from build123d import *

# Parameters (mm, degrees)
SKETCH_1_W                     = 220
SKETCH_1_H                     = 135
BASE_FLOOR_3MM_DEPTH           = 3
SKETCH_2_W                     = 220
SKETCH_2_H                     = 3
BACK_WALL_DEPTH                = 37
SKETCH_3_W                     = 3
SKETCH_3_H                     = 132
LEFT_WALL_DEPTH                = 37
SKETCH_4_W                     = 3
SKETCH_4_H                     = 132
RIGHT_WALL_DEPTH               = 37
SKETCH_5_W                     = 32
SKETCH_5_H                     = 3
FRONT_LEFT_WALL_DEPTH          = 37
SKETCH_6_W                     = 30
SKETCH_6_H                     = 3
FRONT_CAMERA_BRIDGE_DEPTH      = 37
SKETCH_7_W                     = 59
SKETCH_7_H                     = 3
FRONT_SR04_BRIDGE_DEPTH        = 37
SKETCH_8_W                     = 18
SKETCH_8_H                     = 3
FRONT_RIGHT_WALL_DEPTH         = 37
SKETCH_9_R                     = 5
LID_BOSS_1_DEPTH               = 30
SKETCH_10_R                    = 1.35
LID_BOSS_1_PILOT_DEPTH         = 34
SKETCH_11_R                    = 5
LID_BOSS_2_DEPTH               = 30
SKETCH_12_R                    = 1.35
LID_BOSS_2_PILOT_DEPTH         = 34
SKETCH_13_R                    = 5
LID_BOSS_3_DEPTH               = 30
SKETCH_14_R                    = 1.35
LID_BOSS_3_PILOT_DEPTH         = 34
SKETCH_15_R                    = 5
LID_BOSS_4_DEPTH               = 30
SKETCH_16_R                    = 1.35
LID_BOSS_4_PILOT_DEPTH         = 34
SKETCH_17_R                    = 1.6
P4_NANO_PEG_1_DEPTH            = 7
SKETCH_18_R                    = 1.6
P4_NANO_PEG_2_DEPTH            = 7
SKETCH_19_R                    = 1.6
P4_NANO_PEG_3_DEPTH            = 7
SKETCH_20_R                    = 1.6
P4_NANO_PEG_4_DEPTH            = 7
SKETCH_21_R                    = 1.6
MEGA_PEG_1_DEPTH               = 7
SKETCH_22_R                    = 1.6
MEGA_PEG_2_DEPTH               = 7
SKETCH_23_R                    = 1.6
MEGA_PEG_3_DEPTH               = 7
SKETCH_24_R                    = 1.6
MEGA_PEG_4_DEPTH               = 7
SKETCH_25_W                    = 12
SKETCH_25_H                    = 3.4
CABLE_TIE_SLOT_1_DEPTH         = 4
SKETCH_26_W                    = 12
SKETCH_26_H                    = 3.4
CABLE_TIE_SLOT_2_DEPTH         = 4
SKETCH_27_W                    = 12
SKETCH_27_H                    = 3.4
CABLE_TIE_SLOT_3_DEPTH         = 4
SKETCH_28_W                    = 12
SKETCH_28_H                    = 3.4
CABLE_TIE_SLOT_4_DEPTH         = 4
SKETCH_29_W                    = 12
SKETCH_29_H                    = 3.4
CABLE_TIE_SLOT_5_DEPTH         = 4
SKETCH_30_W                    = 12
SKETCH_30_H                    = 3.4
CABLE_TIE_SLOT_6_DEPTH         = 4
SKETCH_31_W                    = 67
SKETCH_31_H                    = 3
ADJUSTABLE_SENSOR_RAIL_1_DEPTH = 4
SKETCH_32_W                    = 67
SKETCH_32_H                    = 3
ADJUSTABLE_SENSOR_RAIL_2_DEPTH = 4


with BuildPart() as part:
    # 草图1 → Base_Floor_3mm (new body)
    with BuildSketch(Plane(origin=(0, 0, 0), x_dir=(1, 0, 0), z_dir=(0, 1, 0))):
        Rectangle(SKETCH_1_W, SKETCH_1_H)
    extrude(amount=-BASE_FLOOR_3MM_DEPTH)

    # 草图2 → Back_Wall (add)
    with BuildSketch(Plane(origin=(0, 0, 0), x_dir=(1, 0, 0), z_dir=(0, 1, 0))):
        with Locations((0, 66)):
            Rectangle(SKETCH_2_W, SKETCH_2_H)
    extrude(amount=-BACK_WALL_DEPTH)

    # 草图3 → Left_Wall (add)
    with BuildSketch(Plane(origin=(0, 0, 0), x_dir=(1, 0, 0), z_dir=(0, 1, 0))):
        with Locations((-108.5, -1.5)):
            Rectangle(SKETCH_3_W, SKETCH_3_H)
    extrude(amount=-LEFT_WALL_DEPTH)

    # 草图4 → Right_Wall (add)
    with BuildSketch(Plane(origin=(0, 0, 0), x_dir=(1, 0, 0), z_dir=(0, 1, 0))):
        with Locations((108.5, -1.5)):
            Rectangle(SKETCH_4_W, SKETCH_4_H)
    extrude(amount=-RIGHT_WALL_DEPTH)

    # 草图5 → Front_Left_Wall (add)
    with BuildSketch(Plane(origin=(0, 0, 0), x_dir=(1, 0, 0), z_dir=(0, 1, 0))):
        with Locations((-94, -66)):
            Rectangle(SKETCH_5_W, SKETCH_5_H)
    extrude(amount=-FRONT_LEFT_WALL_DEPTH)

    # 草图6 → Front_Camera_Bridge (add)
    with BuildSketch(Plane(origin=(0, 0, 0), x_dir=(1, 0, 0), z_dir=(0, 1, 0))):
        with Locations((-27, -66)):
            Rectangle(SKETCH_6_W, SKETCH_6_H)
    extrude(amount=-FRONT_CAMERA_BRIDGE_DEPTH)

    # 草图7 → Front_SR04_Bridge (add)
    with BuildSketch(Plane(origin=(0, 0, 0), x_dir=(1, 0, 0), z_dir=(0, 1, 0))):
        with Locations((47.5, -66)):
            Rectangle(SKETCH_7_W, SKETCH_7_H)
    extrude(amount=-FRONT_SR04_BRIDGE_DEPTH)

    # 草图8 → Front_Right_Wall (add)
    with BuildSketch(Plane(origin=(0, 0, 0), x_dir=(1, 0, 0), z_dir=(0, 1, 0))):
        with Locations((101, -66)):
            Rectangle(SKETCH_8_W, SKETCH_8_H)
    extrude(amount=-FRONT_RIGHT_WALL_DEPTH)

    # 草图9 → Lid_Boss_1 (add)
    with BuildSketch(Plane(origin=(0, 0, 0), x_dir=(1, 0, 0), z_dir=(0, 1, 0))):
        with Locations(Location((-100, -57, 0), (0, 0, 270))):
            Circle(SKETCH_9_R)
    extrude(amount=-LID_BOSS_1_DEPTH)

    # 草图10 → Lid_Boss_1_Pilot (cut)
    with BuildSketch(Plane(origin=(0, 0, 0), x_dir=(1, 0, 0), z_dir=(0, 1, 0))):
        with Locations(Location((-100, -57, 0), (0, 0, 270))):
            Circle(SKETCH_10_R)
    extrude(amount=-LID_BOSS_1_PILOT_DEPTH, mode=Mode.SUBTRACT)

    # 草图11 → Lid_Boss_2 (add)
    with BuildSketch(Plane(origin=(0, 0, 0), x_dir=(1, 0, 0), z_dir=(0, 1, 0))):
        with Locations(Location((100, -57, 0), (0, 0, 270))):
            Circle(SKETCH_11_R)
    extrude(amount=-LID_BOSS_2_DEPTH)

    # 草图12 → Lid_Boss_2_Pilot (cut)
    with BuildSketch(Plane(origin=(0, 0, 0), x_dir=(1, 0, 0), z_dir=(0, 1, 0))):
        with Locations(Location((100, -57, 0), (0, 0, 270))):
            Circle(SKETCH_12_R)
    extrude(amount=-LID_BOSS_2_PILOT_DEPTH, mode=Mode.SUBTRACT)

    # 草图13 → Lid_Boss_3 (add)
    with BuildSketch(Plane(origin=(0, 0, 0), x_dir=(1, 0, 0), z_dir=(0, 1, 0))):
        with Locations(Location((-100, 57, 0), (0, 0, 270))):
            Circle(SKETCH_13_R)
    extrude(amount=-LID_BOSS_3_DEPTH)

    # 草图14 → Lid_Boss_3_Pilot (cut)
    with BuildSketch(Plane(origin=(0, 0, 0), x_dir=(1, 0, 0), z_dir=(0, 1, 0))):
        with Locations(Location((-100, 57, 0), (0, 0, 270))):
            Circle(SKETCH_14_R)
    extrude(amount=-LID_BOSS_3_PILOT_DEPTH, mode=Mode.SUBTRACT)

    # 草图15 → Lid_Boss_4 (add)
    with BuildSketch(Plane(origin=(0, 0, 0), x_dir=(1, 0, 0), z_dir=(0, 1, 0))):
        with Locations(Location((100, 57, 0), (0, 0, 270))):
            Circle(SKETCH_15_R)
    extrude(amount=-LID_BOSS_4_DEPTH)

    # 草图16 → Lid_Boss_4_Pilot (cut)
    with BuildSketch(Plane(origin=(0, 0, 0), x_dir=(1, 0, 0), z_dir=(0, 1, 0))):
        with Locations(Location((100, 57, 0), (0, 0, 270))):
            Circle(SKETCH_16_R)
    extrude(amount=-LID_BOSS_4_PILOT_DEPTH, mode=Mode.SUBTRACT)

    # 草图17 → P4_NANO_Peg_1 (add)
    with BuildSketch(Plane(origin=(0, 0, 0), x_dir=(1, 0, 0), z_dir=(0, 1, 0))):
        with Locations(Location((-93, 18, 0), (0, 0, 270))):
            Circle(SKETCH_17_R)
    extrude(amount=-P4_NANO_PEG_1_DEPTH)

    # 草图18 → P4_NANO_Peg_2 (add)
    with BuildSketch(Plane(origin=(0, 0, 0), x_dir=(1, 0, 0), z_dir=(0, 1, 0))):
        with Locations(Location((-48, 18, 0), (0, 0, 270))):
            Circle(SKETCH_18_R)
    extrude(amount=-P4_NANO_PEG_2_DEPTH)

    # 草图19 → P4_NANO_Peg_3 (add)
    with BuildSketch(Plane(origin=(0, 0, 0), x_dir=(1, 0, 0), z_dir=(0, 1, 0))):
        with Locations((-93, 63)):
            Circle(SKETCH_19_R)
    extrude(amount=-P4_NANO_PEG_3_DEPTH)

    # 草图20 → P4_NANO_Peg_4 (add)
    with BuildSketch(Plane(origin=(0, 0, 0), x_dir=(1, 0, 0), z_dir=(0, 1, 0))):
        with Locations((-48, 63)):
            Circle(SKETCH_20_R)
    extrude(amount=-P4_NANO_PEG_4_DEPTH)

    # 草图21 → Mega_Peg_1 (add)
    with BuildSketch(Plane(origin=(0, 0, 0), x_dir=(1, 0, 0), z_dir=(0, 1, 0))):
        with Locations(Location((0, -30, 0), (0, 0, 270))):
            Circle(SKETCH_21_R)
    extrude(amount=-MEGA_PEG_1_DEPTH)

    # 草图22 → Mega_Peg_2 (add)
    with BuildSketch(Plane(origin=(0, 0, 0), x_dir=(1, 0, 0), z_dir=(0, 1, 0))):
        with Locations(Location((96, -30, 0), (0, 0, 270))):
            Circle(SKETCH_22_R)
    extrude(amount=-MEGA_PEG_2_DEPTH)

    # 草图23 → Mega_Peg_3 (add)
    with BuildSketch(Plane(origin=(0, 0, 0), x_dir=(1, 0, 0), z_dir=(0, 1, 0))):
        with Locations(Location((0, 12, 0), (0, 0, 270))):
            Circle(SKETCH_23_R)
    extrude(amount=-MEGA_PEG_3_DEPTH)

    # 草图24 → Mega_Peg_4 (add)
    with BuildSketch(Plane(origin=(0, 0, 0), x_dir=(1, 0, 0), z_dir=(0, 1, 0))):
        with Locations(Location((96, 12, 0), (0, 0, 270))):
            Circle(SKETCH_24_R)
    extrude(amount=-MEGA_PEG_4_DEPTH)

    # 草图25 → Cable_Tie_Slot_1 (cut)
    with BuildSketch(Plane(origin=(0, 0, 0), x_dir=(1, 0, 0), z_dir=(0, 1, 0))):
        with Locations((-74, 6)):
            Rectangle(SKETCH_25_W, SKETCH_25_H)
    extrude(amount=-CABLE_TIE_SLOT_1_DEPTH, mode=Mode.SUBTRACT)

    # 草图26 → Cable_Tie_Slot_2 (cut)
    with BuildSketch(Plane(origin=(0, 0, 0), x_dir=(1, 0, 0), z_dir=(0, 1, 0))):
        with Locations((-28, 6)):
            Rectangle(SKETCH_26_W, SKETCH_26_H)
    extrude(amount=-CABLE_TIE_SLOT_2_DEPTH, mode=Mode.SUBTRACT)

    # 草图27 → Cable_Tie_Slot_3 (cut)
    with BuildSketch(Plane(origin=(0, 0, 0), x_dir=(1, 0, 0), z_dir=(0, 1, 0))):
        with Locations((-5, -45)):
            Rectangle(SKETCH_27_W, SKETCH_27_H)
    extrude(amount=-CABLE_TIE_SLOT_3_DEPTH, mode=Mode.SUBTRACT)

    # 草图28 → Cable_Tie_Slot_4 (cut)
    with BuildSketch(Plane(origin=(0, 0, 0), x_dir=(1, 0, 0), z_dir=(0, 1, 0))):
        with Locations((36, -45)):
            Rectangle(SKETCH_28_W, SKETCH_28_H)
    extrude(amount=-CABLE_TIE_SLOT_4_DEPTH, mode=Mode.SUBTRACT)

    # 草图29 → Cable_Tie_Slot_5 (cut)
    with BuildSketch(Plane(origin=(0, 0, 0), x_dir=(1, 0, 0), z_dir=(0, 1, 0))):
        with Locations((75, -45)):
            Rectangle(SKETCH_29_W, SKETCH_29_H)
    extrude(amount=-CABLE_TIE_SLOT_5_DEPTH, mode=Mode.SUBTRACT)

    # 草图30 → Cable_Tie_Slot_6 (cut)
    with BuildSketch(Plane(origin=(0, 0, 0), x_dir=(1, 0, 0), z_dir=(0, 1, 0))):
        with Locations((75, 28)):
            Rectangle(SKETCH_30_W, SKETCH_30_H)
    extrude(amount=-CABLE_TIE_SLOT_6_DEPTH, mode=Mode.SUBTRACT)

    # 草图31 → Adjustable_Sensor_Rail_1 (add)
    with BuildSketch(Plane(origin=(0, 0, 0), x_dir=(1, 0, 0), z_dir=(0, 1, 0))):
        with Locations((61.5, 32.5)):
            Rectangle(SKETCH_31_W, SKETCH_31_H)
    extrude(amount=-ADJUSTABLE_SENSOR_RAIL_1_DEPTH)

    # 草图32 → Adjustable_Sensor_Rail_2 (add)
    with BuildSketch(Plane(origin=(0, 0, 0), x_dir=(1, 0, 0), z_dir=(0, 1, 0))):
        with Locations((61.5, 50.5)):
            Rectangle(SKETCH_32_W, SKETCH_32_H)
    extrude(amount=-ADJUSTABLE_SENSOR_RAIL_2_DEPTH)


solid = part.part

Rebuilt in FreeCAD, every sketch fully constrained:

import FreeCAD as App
import Part
import Sketcher


def add_polygon(sketch, points):
    """Adds a closed chain of lines whose ends are joined by coincident constraints."""
    first, n = sketch.GeometryCount, len(points)
    for a, b in zip(points, points[1:] + points[:1]):
        sketch.addGeometry(Part.LineSegment(App.Vector(*a, 0), App.Vector(*b, 0)), False)
    for i in range(n):
        sketch.addConstraint(Sketcher.Constraint("Coincident", first + i, 2, first + (i + 1) % n, 1))

doc = App.newDocument("Part")
body = doc.addObject("PartDesign::Body", "Body")

# Sketch on XZ plane
sketch1 = doc.addObject("Sketcher::SketchObject", "Sketch")
body.addObject(sketch1)
sketch1.AttachmentSupport = (doc.XZ_Plane, [""])
sketch1.MapMode = "FlatFace"
add_polygon(sketch1, [(-110, -67.5), (-110, 67.5), (110, 67.5), (110, -67.5)])  # lines 0-3
sketch1.addConstraint([
    Sketcher.Constraint("Vertical", 0),
    Sketcher.Constraint("Horizontal", 1),
    Sketcher.Constraint("Vertical", 2),
    Sketcher.Constraint("Horizontal", 3),
    Sketcher.Constraint("Symmetric", 0, 2, 2, 2, -1, 1),
    Sketcher.Constraint("DistanceX", 1, 1, 1, 2, 220.0),
    Sketcher.Constraint("DistanceY", 0, 1, 0, 2, 135.0),
])
pad1 = doc.addObject("PartDesign::Pad", "Pad")
body.addObject(pad1)
pad1.Profile = sketch1
pad1.Length = 3

# Sketch on XZ plane
sketch2 = doc.addObject("Sketcher::SketchObject", "Sketch001")
body.addObject(sketch2)
sketch2.AttachmentSupport = (doc.XZ_Plane, [""])
sketch2.MapMode = "FlatFace"
add_polygon(sketch2, [(-110, -67.5), (-110, -64.5), (110, -64.5), (110, -67.5)])  # lines 0-3
sketch2.addConstraint([
    Sketcher.Constraint("Vertical", 0),
    Sketcher.Constraint("Horizontal", 1),
    Sketcher.Constraint("Vertical", 2),
    Sketcher.Constraint("Horizontal", 3),
    Sketcher.Constraint("DistanceX", 1, 1, 1, 2, 220.0),
    Sketcher.Constraint("DistanceY", 0, 1, 0, 2, 3.0),
    Sketcher.Constraint("DistanceX", 0, 2, -1, 1, 110.0),
    Sketcher.Constraint("DistanceY", 0, 2, -1, 1, 64.5),
])
pad2 = doc.addObject("PartDesign::Pad", "Pad001")
body.addObject(pad2)
pad2.Profile = sketch2
pad2.Length = 37

# Sketch on XZ plane
sketch3 = doc.addObject("Sketcher::SketchObject", "Sketch002")
body.addObject(sketch3)
sketch3.AttachmentSupport = (doc.XZ_Plane, [""])
sketch3.MapMode = "FlatFace"
add_polygon(sketch3, [(-110, -64.5), (-110, 67.5), (-107, 67.5), (-107, -64.5)])  # lines 0-3
sketch3.addConstraint([
    Sketcher.Constraint("Vertical", 0),
    Sketcher.Constraint("Horizontal", 1),
    Sketcher.Constraint("Vertical", 2),
    Sketcher.Constraint("Horizontal", 3),
    Sketcher.Constraint("DistanceX", 1, 1, 1, 2, 3.0),
    Sketcher.Constraint("DistanceY", 0, 1, 0, 2, 132.0),
    Sketcher.Constraint("DistanceX", 0, 2, -1, 1, 110.0),
    Sketcher.Constraint("DistanceY", -1, 1, 0, 2, 67.5),
])
pad3 = doc.addObject("PartDesign::Pad", "Pad002")
body.addObject(pad3)
pad3.Profile = sketch3
pad3.Length = 37

# Sketch on XZ plane
sketch4 = doc.addObject("Sketcher::SketchObject", "Sketch003")
body.addObject(sketch4)
sketch4.AttachmentSupport = (doc.XZ_Plane, [""])
sketch4.MapMode = "FlatFace"
add_polygon(sketch4, [(107, -64.5), (107, 67.5), (110, 67.5), (110, -64.5)])  # lines 0-3
sketch4.addConstraint([
    Sketcher.Constraint("Vertical", 0),
    Sketcher.Constraint("Horizontal", 1),
    Sketcher.Constraint("Vertical", 2),
    Sketcher.Constraint("Horizontal", 3),
    Sketcher.Constraint("DistanceX", 1, 1, 1, 2, 3.0),
    Sketcher.Constraint("DistanceY", 0, 1, 0, 2, 132.0),
    Sketcher.Constraint("DistanceX", -1, 1, 0, 2, 107.0),
    Sketcher.Constraint("DistanceY", -1, 1, 0, 2, 67.5),
])
pad4 = doc.addObject("PartDesign::Pad", "Pad003")
body.addObject(pad4)
pad4.Profile = sketch4
pad4.Length = 37

# Sketch on XZ plane
sketch5 = doc.addObject("Sketcher::SketchObject", "Sketch004")
body.addObject(sketch5)
sketch5.AttachmentSupport = (doc.XZ_Plane, [""])
sketch5.MapMode = "FlatFace"
add_polygon(sketch5, [(-110, 64.5), (-110, 67.5), (-78, 67.5), (-78, 64.5)])  # lines 0-3
sketch5.addConstraint([
    Sketcher.Constraint("Vertical", 0),
    Sketcher.Constraint("Horizontal", 1),
    Sketcher.Constraint("Vertical", 2),
    Sketcher.Constraint("Horizontal", 3),
    Sketcher.Constraint("DistanceX", 1, 1, 1, 2, 32.0),
    Sketcher.Constraint("DistanceY", 0, 1, 0, 2, 3.0),
    Sketcher.Constraint("DistanceX", 0, 2, -1, 1, 110.0),
    Sketcher.Constraint("DistanceY", -1, 1, 0, 2, 67.5),
])
pad5 = doc.addObject("PartDesign::Pad", "Pad004")
body.addObject(pad5)
pad5.Profile = sketch5
pad5.Length = 37

# Sketch on XZ plane
sketch6 = doc.addObject("Sketcher::SketchObject", "Sketch005")
body.addObject(sketch6)
sketch6.AttachmentSupport = (doc.XZ_Plane, [""])
sketch6.MapMode = "FlatFace"
add_polygon(sketch6, [(-42, 64.5), (-42, 67.5), (-12, 67.5), (-12, 64.5)])  # lines 0-3
sketch6.addConstraint([
    Sketcher.Constraint("Vertical", 0),
    Sketcher.Constraint("Horizontal", 1),
    Sketcher.Constraint("Vertical", 2),
    Sketcher.Constraint("Horizontal", 3),
    Sketcher.Constraint("DistanceX", 1, 1, 1, 2, 30.0),
    Sketcher.Constraint("DistanceY", 0, 1, 0, 2, 3.0),
    Sketcher.Constraint("DistanceX", 0, 2, -1, 1, 42.0),
    Sketcher.Constraint("DistanceY", -1, 1, 0, 2, 67.5),
])
pad6 = doc.addObject("PartDesign::Pad", "Pad005")
body.addObject(pad6)
pad6.Profile = sketch6
pad6.Length = 37

# Sketch on XZ plane
sketch7 = doc.addObject("Sketcher::SketchObject", "Sketch006")
body.addObject(sketch7)
sketch7.AttachmentSupport = (doc.XZ_Plane, [""])
sketch7.MapMode = "FlatFace"
add_polygon(sketch7, [(18, 64.5), (18, 67.5), (77, 67.5), (77, 64.5)])  # lines 0-3
sketch7.addConstraint([
    Sketcher.Constraint("Vertical", 0),
    Sketcher.Constraint("Horizontal", 1),
    Sketcher.Constraint("Vertical", 2),
    Sketcher.Constraint("Horizontal", 3),
    Sketcher.Constraint("DistanceX", 1, 1, 1, 2, 59.0),
    Sketcher.Constraint("DistanceY", 0, 1, 0, 2, 3.0),
    Sketcher.Constraint("DistanceX", -1, 1, 0, 2, 18.0),
    Sketcher.Constraint("DistanceY", -1, 1, 0, 2, 67.5),
])
pad7 = doc.addObject("PartDesign::Pad", "Pad006")
body.addObject(pad7)
pad7.Profile = sketch7
pad7.Length = 37

# Sketch on XZ plane
sketch8 = doc.addObject("Sketcher::SketchObject", "Sketch007")
body.addObject(sketch8)
sketch8.AttachmentSupport = (doc.XZ_Plane, [""])
sketch8.MapMode = "FlatFace"
add_polygon(sketch8, [(92, 64.5), (92, 67.5), (110, 67.5), (110, 64.5)])  # lines 0-3
sketch8.addConstraint([
    Sketcher.Constraint("Vertical", 0),
    Sketcher.Constraint("Horizontal", 1),
    Sketcher.Constraint("Vertical", 2),
    Sketcher.Constraint("Horizontal", 3),
    Sketcher.Constraint("DistanceX", 1, 1, 1, 2, 18.0),
    Sketcher.Constraint("DistanceY", 0, 1, 0, 2, 3.0),
    Sketcher.Constraint("DistanceX", -1, 1, 0, 2, 92.0),
    Sketcher.Constraint("DistanceY", -1, 1, 0, 2, 67.5),
])
pad8 = doc.addObject("PartDesign::Pad", "Pad007")
body.addObject(pad8)
pad8.Profile = sketch8
pad8.Length = 37

# Sketch on XZ plane
sketch9 = doc.addObject("Sketcher::SketchObject", "Sketch008")
body.addObject(sketch9)
sketch9.AttachmentSupport = (doc.XZ_Plane, [""])
sketch9.MapMode = "FlatFace"
sketch9.addGeometry(Part.Circle(App.Vector(-100, 57, 0), App.Vector(0, 0, 1), 5), False)
sketch9.addConstraint([
    Sketcher.Constraint("Diameter", 0, 10.0),
    Sketcher.Constraint("DistanceX", 0, 3, -1, 1, 100.0),
    Sketcher.Constraint("DistanceY", -1, 1, 0, 3, 57.0),
])
pad9 = doc.addObject("PartDesign::Pad", "Pad008")
body.addObject(pad9)
pad9.Profile = sketch9
pad9.Length = 30

# Sketch on XZ plane
sketch10 = doc.addObject("Sketcher::SketchObject", "Sketch009")
body.addObject(sketch10)
sketch10.AttachmentSupport = (doc.XZ_Plane, [""])
sketch10.MapMode = "FlatFace"
sketch10.addGeometry(Part.Circle(App.Vector(-100, 57, 0), App.Vector(0, 0, 1), 1.35), False)
sketch10.addConstraint([
    Sketcher.Constraint("Diameter", 0, 2.7),
    Sketcher.Constraint("DistanceX", 0, 3, -1, 1, 100.0),
    Sketcher.Constraint("DistanceY", -1, 1, 0, 3, 57.0),
])
pocket1 = doc.addObject("PartDesign::Pocket", "Pocket")
body.addObject(pocket1)
pocket1.Profile = sketch10
pocket1.Length = 34
pocket1.Reversed = True

# Sketch on XZ plane
sketch11 = doc.addObject("Sketcher::SketchObject", "Sketch010")
body.addObject(sketch11)
sketch11.AttachmentSupport = (doc.XZ_Plane, [""])
sketch11.MapMode = "FlatFace"
sketch11.addGeometry(Part.Circle(App.Vector(100, 57, 0), App.Vector(0, 0, 1), 5), False)
sketch11.addConstraint([
    Sketcher.Constraint("Diameter", 0, 10.0),
    Sketcher.Constraint("DistanceX", -1, 1, 0, 3, 100.0),
    Sketcher.Constraint("DistanceY", -1, 1, 0, 3, 57.0),
])
pad10 = doc.addObject("PartDesign::Pad", "Pad009")
body.addObject(pad10)
pad10.Profile = sketch11
pad10.Length = 30

# Sketch on XZ plane
sketch12 = doc.addObject("Sketcher::SketchObject", "Sketch011")
body.addObject(sketch12)
sketch12.AttachmentSupport = (doc.XZ_Plane, [""])
sketch12.MapMode = "FlatFace"
sketch12.addGeometry(Part.Circle(App.Vector(100, 57, 0), App.Vector(0, 0, 1), 1.35), False)
sketch12.addConstraint([
    Sketcher.Constraint("Diameter", 0, 2.7),
    Sketcher.Constraint("DistanceX", -1, 1, 0, 3, 100.0),
    Sketcher.Constraint("DistanceY", -1, 1, 0, 3, 57.0),
])
pocket2 = doc.addObject("PartDesign::Pocket", "Pocket001")
body.addObject(pocket2)
pocket2.Profile = sketch12
pocket2.Length = 34
pocket2.Reversed = True

# Sketch on XZ plane
sketch13 = doc.addObject("Sketcher::SketchObject", "Sketch012")
body.addObject(sketch13)
sketch13.AttachmentSupport = (doc.XZ_Plane, [""])
sketch13.MapMode = "FlatFace"
sketch13.addGeometry(Part.Circle(App.Vector(-100, -57, 0), App.Vector(0, 0, 1), 5), False)
sketch13.addConstraint([
    Sketcher.Constraint("Diameter", 0, 10.0),
    Sketcher.Constraint("DistanceX", 0, 3, -1, 1, 100.0),
    Sketcher.Constraint("DistanceY", 0, 3, -1, 1, 57.0),
])
pad11 = doc.addObject("PartDesign::Pad", "Pad010")
body.addObject(pad11)
pad11.Profile = sketch13
pad11.Length = 30

# Sketch on XZ plane
sketch14 = doc.addObject("Sketcher::SketchObject", "Sketch013")
body.addObject(sketch14)
sketch14.AttachmentSupport = (doc.XZ_Plane, [""])
sketch14.MapMode = "FlatFace"
sketch14.addGeometry(Part.Circle(App.Vector(-100, -57, 0), App.Vector(0, 0, 1), 1.35), False)
sketch14.addConstraint([
    Sketcher.Constraint("Diameter", 0, 2.7),
    Sketcher.Constraint("DistanceX", 0, 3, -1, 1, 100.0),
    Sketcher.Constraint("DistanceY", 0, 3, -1, 1, 57.0),
])
pocket3 = doc.addObject("PartDesign::Pocket", "Pocket002")
body.addObject(pocket3)
pocket3.Profile = sketch14
pocket3.Length = 34
pocket3.Reversed = True

# Sketch on XZ plane
sketch15 = doc.addObject("Sketcher::SketchObject", "Sketch014")
body.addObject(sketch15)
sketch15.AttachmentSupport = (doc.XZ_Plane, [""])
sketch15.MapMode = "FlatFace"
sketch15.addGeometry(Part.Circle(App.Vector(100, -57, 0), App.Vector(0, 0, 1), 5), False)
sketch15.addConstraint([
    Sketcher.Constraint("Diameter", 0, 10.0),
    Sketcher.Constraint("DistanceX", -1, 1, 0, 3, 100.0),
    Sketcher.Constraint("DistanceY", 0, 3, -1, 1, 57.0),
])
pad12 = doc.addObject("PartDesign::Pad", "Pad011")
body.addObject(pad12)
pad12.Profile = sketch15
pad12.Length = 30

# Sketch on XZ plane
sketch16 = doc.addObject("Sketcher::SketchObject", "Sketch015")
body.addObject(sketch16)
sketch16.AttachmentSupport = (doc.XZ_Plane, [""])
sketch16.MapMode = "FlatFace"
sketch16.addGeometry(Part.Circle(App.Vector(100, -57, 0), App.Vector(0, 0, 1), 1.35), False)
sketch16.addConstraint([
    Sketcher.Constraint("Diameter", 0, 2.7),
    Sketcher.Constraint("DistanceX", -1, 1, 0, 3, 100.0),
    Sketcher.Constraint("DistanceY", 0, 3, -1, 1, 57.0),
])
pocket4 = doc.addObject("PartDesign::Pocket", "Pocket003")
body.addObject(pocket4)
pocket4.Profile = sketch16
pocket4.Length = 34
pocket4.Reversed = True

# Sketch on XZ plane
sketch17 = doc.addObject("Sketcher::SketchObject", "Sketch016")
body.addObject(sketch17)
sketch17.AttachmentSupport = (doc.XZ_Plane, [""])
sketch17.MapMode = "FlatFace"
sketch17.addGeometry(Part.Circle(App.Vector(-93, -18, 0), App.Vector(0, 0, 1), 1.6), False)
sketch17.addConstraint([
    Sketcher.Constraint("Diameter", 0, 3.2),
    Sketcher.Constraint("DistanceX", 0, 3, -1, 1, 93.0),
    Sketcher.Constraint("DistanceY", 0, 3, -1, 1, 18.0),
])
pad13 = doc.addObject("PartDesign::Pad", "Pad012")
body.addObject(pad13)
pad13.Profile = sketch17
pad13.Length = 7

# Sketch on XZ plane
sketch18 = doc.addObject("Sketcher::SketchObject", "Sketch017")
body.addObject(sketch18)
sketch18.AttachmentSupport = (doc.XZ_Plane, [""])
sketch18.MapMode = "FlatFace"
sketch18.addGeometry(Part.Circle(App.Vector(-48, -18, 0), App.Vector(0, 0, 1), 1.6), False)
sketch18.addConstraint([
    Sketcher.Constraint("Diameter", 0, 3.2),
    Sketcher.Constraint("DistanceX", 0, 3, -1, 1, 48.0),
    Sketcher.Constraint("DistanceY", 0, 3, -1, 1, 18.0),
])
pad14 = doc.addObject("PartDesign::Pad", "Pad013")
body.addObject(pad14)
pad14.Profile = sketch18
pad14.Length = 7

# Sketch on XZ plane
sketch19 = doc.addObject("Sketcher::SketchObject", "Sketch018")
body.addObject(sketch19)
sketch19.AttachmentSupport = (doc.XZ_Plane, [""])
sketch19.MapMode = "FlatFace"
sketch19.addGeometry(Part.Circle(App.Vector(-93, -63, 0), App.Vector(0, 0, 1), 1.6), False)
sketch19.addConstraint([
    Sketcher.Constraint("Diameter", 0, 3.2),
    Sketcher.Constraint("DistanceX", 0, 3, -1, 1, 93.0),
    Sketcher.Constraint("DistanceY", 0, 3, -1, 1, 63.0),
])
pad15 = doc.addObject("PartDesign::Pad", "Pad014")
body.addObject(pad15)
pad15.Profile = sketch19
pad15.Length = 7

# Sketch on XZ plane
sketch20 = doc.addObject("Sketcher::SketchObject", "Sketch019")
body.addObject(sketch20)
sketch20.AttachmentSupport = (doc.XZ_Plane, [""])
sketch20.MapMode = "FlatFace"
sketch20.addGeometry(Part.Circle(App.Vector(-48, -63, 0), App.Vector(0, 0, 1), 1.6), False)
sketch20.addConstraint([
    Sketcher.Constraint("Diameter", 0, 3.2),
    Sketcher.Constraint("DistanceX", 0, 3, -1, 1, 48.0),
    Sketcher.Constraint("DistanceY", 0, 3, -1, 1, 63.0),
])
pad16 = doc.addObject("PartDesign::Pad", "Pad015")
body.addObject(pad16)
pad16.Profile = sketch20
pad16.Length = 7

# Sketch on XZ plane
sketch21 = doc.addObject("Sketcher::SketchObject", "Sketch020")
body.addObject(sketch21)
sketch21.AttachmentSupport = (doc.XZ_Plane, [""])
sketch21.MapMode = "FlatFace"
sketch21.addGeometry(Part.Circle(App.Vector(0, 30, 0), App.Vector(0, 0, 1), 1.6), False)
sketch21.addConstraint([
    Sketcher.Constraint("PointOnObject", 0, 3, -2),
    Sketcher.Constraint("Diameter", 0, 3.2),
    Sketcher.Constraint("DistanceY", -1, 1, 0, 3, 30.0),
])
pad17 = doc.addObject("PartDesign::Pad", "Pad016")
body.addObject(pad17)
pad17.Profile = sketch21
pad17.Length = 7

# Sketch on XZ plane
sketch22 = doc.addObject("Sketcher::SketchObject", "Sketch021")
body.addObject(sketch22)
sketch22.AttachmentSupport = (doc.XZ_Plane, [""])
sketch22.MapMode = "FlatFace"
sketch22.addGeometry(Part.Circle(App.Vector(96, 30, 0), App.Vector(0, 0, 1), 1.6), False)
sketch22.addConstraint([
    Sketcher.Constraint("Diameter", 0, 3.2),
    Sketcher.Constraint("DistanceX", -1, 1, 0, 3, 96.0),
    Sketcher.Constraint("DistanceY", -1, 1, 0, 3, 30.0),
])
pad18 = doc.addObject("PartDesign::Pad", "Pad017")
body.addObject(pad18)
pad18.Profile = sketch22
pad18.Length = 7

# Sketch on XZ plane
sketch23 = doc.addObject("Sketcher::SketchObject", "Sketch022")
body.addObject(sketch23)
sketch23.AttachmentSupport = (doc.XZ_Plane, [""])
sketch23.MapMode = "FlatFace"
sketch23.addGeometry(Part.Circle(App.Vector(0, -12, 0), App.Vector(0, 0, 1), 1.6), False)
sketch23.addConstraint([
    Sketcher.Constraint("PointOnObject", 0, 3, -2),
    Sketcher.Constraint("Diameter", 0, 3.2),
    Sketcher.Constraint("DistanceY", 0, 3, -1, 1, 12.0),
])
pad19 = doc.addObject("PartDesign::Pad", "Pad018")
body.addObject(pad19)
pad19.Profile = sketch23
pad19.Length = 7

# Sketch on XZ plane
sketch24 = doc.addObject("Sketcher::SketchObject", "Sketch023")
body.addObject(sketch24)
sketch24.AttachmentSupport = (doc.XZ_Plane, [""])
sketch24.MapMode = "FlatFace"
sketch24.addGeometry(Part.Circle(App.Vector(96, -12, 0), App.Vector(0, 0, 1), 1.6), False)
sketch24.addConstraint([
    Sketcher.Constraint("Diameter", 0, 3.2),
    Sketcher.Constraint("DistanceX", -1, 1, 0, 3, 96.0),
    Sketcher.Constraint("DistanceY", 0, 3, -1, 1, 12.0),
])
pad20 = doc.addObject("PartDesign::Pad", "Pad019")
body.addObject(pad20)
pad20.Profile = sketch24
pad20.Length = 7

# Sketch on XZ plane
sketch25 = doc.addObject("Sketcher::SketchObject", "Sketch024")
body.addObject(sketch25)
sketch25.AttachmentSupport = (doc.XZ_Plane, [""])
sketch25.MapMode = "FlatFace"
add_polygon(sketch25, [(-80, -7.7), (-80, -4.3), (-68, -4.3), (-68, -7.7)])  # lines 0-3
sketch25.addConstraint([
    Sketcher.Constraint("Vertical", 0),
    Sketcher.Constraint("Horizontal", 1),
    Sketcher.Constraint("Vertical", 2),
    Sketcher.Constraint("Horizontal", 3),
    Sketcher.Constraint("DistanceX", 1, 1, 1, 2, 12.0),
    Sketcher.Constraint("DistanceY", 0, 1, 0, 2, 3.4),
    Sketcher.Constraint("DistanceX", 0, 2, -1, 1, 80.0),
    Sketcher.Constraint("DistanceY", 0, 2, -1, 1, 4.3),
])
pocket5 = doc.addObject("PartDesign::Pocket", "Pocket004")
body.addObject(pocket5)
pocket5.Profile = sketch25
pocket5.Length = 4
pocket5.Reversed = True

# Sketch on XZ plane
sketch26 = doc.addObject("Sketcher::SketchObject", "Sketch025")
body.addObject(sketch26)
sketch26.AttachmentSupport = (doc.XZ_Plane, [""])
sketch26.MapMode = "FlatFace"
add_polygon(sketch26, [(-34, -7.7), (-34, -4.3), (-22, -4.3), (-22, -7.7)])  # lines 0-3
sketch26.addConstraint([
    Sketcher.Constraint("Vertical", 0),
    Sketcher.Constraint("Horizontal", 1),
    Sketcher.Constraint("Vertical", 2),
    Sketcher.Constraint("Horizontal", 3),
    Sketcher.Constraint("DistanceX", 1, 1, 1, 2, 12.0),
    Sketcher.Constraint("DistanceY", 0, 1, 0, 2, 3.4),
    Sketcher.Constraint("DistanceX", 0, 2, -1, 1, 34.0),
    Sketcher.Constraint("DistanceY", 0, 2, -1, 1, 4.3),
])
pocket6 = doc.addObject("PartDesign::Pocket", "Pocket005")
body.addObject(pocket6)
pocket6.Profile = sketch26
pocket6.Length = 4
pocket6.Reversed = True

# Sketch on XZ plane
sketch27 = doc.addObject("Sketcher::SketchObject", "Sketch026")
body.addObject(sketch27)
sketch27.AttachmentSupport = (doc.XZ_Plane, [""])
sketch27.MapMode = "FlatFace"
add_polygon(sketch27, [(-11, 43.3), (-11, 46.7), (1, 46.7), (1, 43.3)])  # lines 0-3
sketch27.addConstraint([
    Sketcher.Constraint("Vertical", 0),
    Sketcher.Constraint("Horizontal", 1),
    Sketcher.Constraint("Vertical", 2),
    Sketcher.Constraint("Horizontal", 3),
    Sketcher.Constraint("DistanceX", 1, 1, 1, 2, 12.0),
    Sketcher.Constraint("DistanceY", 0, 1, 0, 2, 3.4),
    Sketcher.Constraint("DistanceX", 0, 2, -1, 1, 11.0),
    Sketcher.Constraint("DistanceY", -1, 1, 0, 2, 46.7),
])
pocket7 = doc.addObject("PartDesign::Pocket", "Pocket006")
body.addObject(pocket7)
pocket7.Profile = sketch27
pocket7.Length = 4
pocket7.Reversed = True

# Sketch on XZ plane
sketch28 = doc.addObject("Sketcher::SketchObject", "Sketch027")
body.addObject(sketch28)
sketch28.AttachmentSupport = (doc.XZ_Plane, [""])
sketch28.MapMode = "FlatFace"
add_polygon(sketch28, [(30, 43.3), (30, 46.7), (42, 46.7), (42, 43.3)])  # lines 0-3
sketch28.addConstraint([
    Sketcher.Constraint("Vertical", 0),
    Sketcher.Constraint("Horizontal", 1),
    Sketcher.Constraint("Vertical", 2),
    Sketcher.Constraint("Horizontal", 3),
    Sketcher.Constraint("DistanceX", 1, 1, 1, 2, 12.0),
    Sketcher.Constraint("DistanceY", 0, 1, 0, 2, 3.4),
    Sketcher.Constraint("DistanceX", -1, 1, 0, 2, 30.0),
    Sketcher.Constraint("DistanceY", -1, 1, 0, 2, 46.7),
])
pocket8 = doc.addObject("PartDesign::Pocket", "Pocket007")
body.addObject(pocket8)
pocket8.Profile = sketch28
pocket8.Length = 4
pocket8.Reversed = True

# Sketch on XZ plane
sketch29 = doc.addObject("Sketcher::SketchObject", "Sketch028")
body.addObject(sketch29)
sketch29.AttachmentSupport = (doc.XZ_Plane, [""])
sketch29.MapMode = "FlatFace"
add_polygon(sketch29, [(69, 43.3), (69, 46.7), (81, 46.7), (81, 43.3)])  # lines 0-3
sketch29.addConstraint([
    Sketcher.Constraint("Vertical", 0),
    Sketcher.Constraint("Horizontal", 1),
    Sketcher.Constraint("Vertical", 2),
    Sketcher.Constraint("Horizontal", 3),
    Sketcher.Constraint("DistanceX", 1, 1, 1, 2, 12.0),
    Sketcher.Constraint("DistanceY", 0, 1, 0, 2, 3.4),
    Sketcher.Constraint("DistanceX", -1, 1, 0, 2, 69.0),
    Sketcher.Constraint("DistanceY", -1, 1, 0, 2, 46.7),
])
pocket9 = doc.addObject("PartDesign::Pocket", "Pocket008")
body.addObject(pocket9)
pocket9.Profile = sketch29
pocket9.Length = 4
pocket9.Reversed = True

# Sketch on XZ plane
sketch30 = doc.addObject("Sketcher::SketchObject", "Sketch029")
body.addObject(sketch30)
sketch30.AttachmentSupport = (doc.XZ_Plane, [""])
sketch30.MapMode = "FlatFace"
add_polygon(sketch30, [(69, -29.7), (69, -26.3), (81, -26.3), (81, -29.7)])  # lines 0-3
sketch30.addConstraint([
    Sketcher.Constraint("Vertical", 0),
    Sketcher.Constraint("Horizontal", 1),
    Sketcher.Constraint("Vertical", 2),
    Sketcher.Constraint("Horizontal", 3),
    Sketcher.Constraint("DistanceX", 1, 1, 1, 2, 12.0),
    Sketcher.Constraint("DistanceY", 0, 1, 0, 2, 3.4),
    Sketcher.Constraint("DistanceX", -1, 1, 0, 2, 69.0),
    Sketcher.Constraint("DistanceY", 0, 2, -1, 1, 26.3),
])
pocket10 = doc.addObject("PartDesign::Pocket", "Pocket009")
body.addObject(pocket10)
pocket10.Profile = sketch30
pocket10.Length = 4
pocket10.Reversed = True

# Sketch on XZ plane
sketch31 = doc.addObject("Sketcher::SketchObject", "Sketch030")
body.addObject(sketch31)
sketch31.AttachmentSupport = (doc.XZ_Plane, [""])
sketch31.MapMode = "FlatFace"
add_polygon(sketch31, [(28, -34), (28, -31), (95, -31), (95, -34)])  # lines 0-3
sketch31.addConstraint([
    Sketcher.Constraint("Vertical", 0),
    Sketcher.Constraint("Horizontal", 1),
    Sketcher.Constraint("Vertical", 2),
    Sketcher.Constraint("Horizontal", 3),
    Sketcher.Constraint("DistanceX", 1, 1, 1, 2, 67.0),
    Sketcher.Constraint("DistanceY", 0, 1, 0, 2, 3.0),
    Sketcher.Constraint("DistanceX", -1, 1, 0, 2, 28.0),
    Sketcher.Constraint("DistanceY", 0, 2, -1, 1, 31.0),
])
pad21 = doc.addObject("PartDesign::Pad", "Pad020")
body.addObject(pad21)
pad21.Profile = sketch31
pad21.Length = 4

# Sketch on XZ plane
sketch32 = doc.addObject("Sketcher::SketchObject", "Sketch031")
body.addObject(sketch32)
sketch32.AttachmentSupport = (doc.XZ_Plane, [""])
sketch32.MapMode = "FlatFace"
add_polygon(sketch32, [(28, -52), (28, -49), (95, -49), (95, -52)])  # lines 0-3
sketch32.addConstraint([
    Sketcher.Constraint("Vertical", 0),
    Sketcher.Constraint("Horizontal", 1),
    Sketcher.Constraint("Vertical", 2),
    Sketcher.Constraint("Horizontal", 3),
    Sketcher.Constraint("DistanceX", 1, 1, 1, 2, 67.0),
    Sketcher.Constraint("DistanceY", 0, 1, 0, 2, 3.0),
    Sketcher.Constraint("DistanceX", -1, 1, 0, 2, 28.0),
    Sketcher.Constraint("DistanceY", 0, 2, -1, 1, 49.0),
])
pad22 = doc.addObject("PartDesign::Pad", "Pad021")
body.addObject(pad22)
pad22.Profile = sketch32
pad22.Length = 4

doc.recompute()
